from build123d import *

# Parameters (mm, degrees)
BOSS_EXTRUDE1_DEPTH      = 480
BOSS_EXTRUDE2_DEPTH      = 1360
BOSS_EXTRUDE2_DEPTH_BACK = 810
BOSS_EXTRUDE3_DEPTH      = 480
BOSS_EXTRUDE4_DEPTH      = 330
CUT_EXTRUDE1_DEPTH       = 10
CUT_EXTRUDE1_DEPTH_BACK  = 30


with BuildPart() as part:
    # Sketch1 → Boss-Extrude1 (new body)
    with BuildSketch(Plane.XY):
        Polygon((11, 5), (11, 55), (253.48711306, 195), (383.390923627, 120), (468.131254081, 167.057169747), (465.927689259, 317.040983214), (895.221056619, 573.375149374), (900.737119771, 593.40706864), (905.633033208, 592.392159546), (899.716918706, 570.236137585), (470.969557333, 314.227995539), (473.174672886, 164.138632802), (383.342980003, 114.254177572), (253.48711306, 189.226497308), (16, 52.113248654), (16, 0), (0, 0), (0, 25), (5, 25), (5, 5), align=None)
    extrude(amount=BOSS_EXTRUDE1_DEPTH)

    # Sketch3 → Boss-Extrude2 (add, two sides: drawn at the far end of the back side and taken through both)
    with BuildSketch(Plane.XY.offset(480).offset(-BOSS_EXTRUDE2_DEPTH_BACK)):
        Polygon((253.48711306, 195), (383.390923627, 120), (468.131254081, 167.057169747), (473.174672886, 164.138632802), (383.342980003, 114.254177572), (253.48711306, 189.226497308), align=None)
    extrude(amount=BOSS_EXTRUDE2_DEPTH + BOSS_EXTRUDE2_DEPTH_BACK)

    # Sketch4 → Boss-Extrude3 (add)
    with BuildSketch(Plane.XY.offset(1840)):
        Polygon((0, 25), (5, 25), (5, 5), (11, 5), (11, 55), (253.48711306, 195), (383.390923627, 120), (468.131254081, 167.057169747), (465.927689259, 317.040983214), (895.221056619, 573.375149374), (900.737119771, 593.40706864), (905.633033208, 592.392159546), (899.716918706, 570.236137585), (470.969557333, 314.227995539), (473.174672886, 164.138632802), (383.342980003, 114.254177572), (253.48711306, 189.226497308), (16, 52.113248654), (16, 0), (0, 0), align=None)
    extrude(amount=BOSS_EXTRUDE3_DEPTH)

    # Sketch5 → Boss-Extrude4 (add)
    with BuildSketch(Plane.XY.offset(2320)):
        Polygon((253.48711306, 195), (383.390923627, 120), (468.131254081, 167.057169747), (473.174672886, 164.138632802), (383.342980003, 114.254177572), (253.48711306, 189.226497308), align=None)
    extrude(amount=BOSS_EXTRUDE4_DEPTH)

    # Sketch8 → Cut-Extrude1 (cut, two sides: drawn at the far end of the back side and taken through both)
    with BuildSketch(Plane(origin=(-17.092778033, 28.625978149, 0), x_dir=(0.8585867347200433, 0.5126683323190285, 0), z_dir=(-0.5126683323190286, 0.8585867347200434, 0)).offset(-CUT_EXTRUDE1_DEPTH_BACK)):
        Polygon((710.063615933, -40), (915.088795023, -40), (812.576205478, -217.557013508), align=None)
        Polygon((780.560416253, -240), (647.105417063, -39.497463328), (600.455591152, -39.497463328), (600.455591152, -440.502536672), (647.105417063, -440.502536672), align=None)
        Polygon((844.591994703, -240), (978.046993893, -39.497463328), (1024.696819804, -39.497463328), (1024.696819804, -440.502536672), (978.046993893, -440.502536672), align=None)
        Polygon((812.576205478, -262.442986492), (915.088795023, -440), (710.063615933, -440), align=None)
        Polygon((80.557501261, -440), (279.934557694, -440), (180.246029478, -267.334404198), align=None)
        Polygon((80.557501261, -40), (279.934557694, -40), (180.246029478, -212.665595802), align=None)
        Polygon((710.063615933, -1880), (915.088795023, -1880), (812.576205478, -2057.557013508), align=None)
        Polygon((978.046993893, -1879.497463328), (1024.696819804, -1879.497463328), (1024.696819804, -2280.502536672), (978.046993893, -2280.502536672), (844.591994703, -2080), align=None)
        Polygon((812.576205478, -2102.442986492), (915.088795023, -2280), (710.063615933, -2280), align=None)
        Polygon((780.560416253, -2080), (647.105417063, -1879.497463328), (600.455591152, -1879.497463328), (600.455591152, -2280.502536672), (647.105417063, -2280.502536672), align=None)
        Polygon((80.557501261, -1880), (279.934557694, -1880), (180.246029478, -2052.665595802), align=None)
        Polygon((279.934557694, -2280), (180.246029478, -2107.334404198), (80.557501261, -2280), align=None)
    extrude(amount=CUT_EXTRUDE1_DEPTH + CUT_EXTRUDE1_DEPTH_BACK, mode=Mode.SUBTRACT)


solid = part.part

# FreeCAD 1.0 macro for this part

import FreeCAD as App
import Part
import Sketcher

V = App.Vector
Q = App.Units.Quantity


def add_polygon(sketch, points):
    """Adds a closed chain of lines whose ends are joined by coincident constraints."""
    first, n = sketch.GeometryCount, len(points)
    for a, b in zip(points, points[1:] + points[:1]):
        sketch.addGeometry(Part.LineSegment(App.Vector(*a, 0), App.Vector(*b, 0)), False)
    for i in range(n):
        sketch.addConstraint(Sketcher.Constraint("Coincident", first + i, 2, first + (i + 1) % n, 1))

doc = App.newDocument("Part")
body = doc.addObject("PartDesign::Body", "Body")

sketch1 = body.newObject("Sketcher::SketchObject", "Sketch")
sketch1.AttachmentSupport = (doc.getObject("XY_Plane"), [""])
sketch1.MapMode = "FlatFace"
add_polygon(sketch1, [(11, 55), (11, 5), (5, 5), (5, 25), (0, 25), (0, 0), (16, 0), (16, 52), (253, 189), (383, 114), (473, 164), (471, 314), (900, 570), (906, 592), (901, 593), (895, 573), (466, 317), (468, 167), (383, 120), (253, 195)])
sketch1.addConstraint([
    Sketcher.Constraint("Vertical", 0),
    Sketcher.Constraint("Horizontal", 1),
    Sketcher.Constraint("Vertical", 2),
    Sketcher.Constraint("Horizontal", 3),
    Sketcher.Constraint("Vertical", 4),
    Sketcher.Constraint("Horizontal", 5),
    Sketcher.Constraint("Vertical", 6),
    Sketcher.Constraint("Coincident", 4, 2, -1, 1),
    Sketcher.Constraint("Parallel", 11, 15),
    Sketcher.Constraint("Parallel", 10, 16),
    Sketcher.Constraint("Parallel", 9, 17),
    Sketcher.Constraint("Parallel", 8, 18),
    Sketcher.Constraint("Parallel", 7, 19),
    Sketcher.Constraint("Vertical", 7, 2, 18, 2),
    Sketcher.Constraint("Equal", 16, 18),
    Sketcher.Constraint("DistanceX", 1, 2, 1, 1, 6.0),
    Sketcher.Constraint("DistanceX", 3, 2, 3, 1, 5.0),
    Sketcher.Constraint("DistanceX", 5, 1, 5, 2, 16.0),
    Sketcher.Constraint("DistanceY", 0, 2, 0, 1, 50.0),
    Sketcher.Constraint("DistanceY", 2, 1, 2, 2, 20.0),
    Sketcher.Constraint("DistanceY", 4, 2, 4, 1, 25.0),
    Sketcher.Constraint("Angle", 7, Q("30 deg")),
    Sketcher.Constraint("Angle", 8, Q("-30 deg")),
    Sketcher.Constraint("Distance", 13, 5.000001),
    Sketcher.Constraint("Distance", 15, 500.0),
    Sketcher.Constraint("Distance", 16, 150.0),
    Sketcher.Constraint("Distance", 19, 280.0),
    Sketcher.Constraint("DistanceY", 6, 1, 6, 2, 52.113249),
    Sketcher.Constraint("DistanceY", 7, 2, 10, 2, 125.001498),
    Sketcher.Constraint("DistanceX", 11, 2, 13, 2, 1.020201),
    Sketcher.Constraint("DistanceX", 10, 2, 14, 2, 424.251499),
    Sketcher.Constraint("Distance", 8, 149.944639),
    Sketcher.Constraint("Distance", 10, 150.105561),
    Sketcher.Constraint("Distance", 17, 96.92936),
    Sketcher.Constraint("DistanceX", -1, 1, 11, 2, 899.716919),
    Sketcher.Constraint("DistanceY", -1, 1, 12, 2, 592.39216),
    Sketcher.Constraint("DistanceY", -1, 1, 13, 2, 593.407069),
    Sketcher.Constraint("DistanceY", -1, 1, 14, 2, 573.375149),
    Sketcher.Constraint("DistanceX", -1, 1, 15, 2, 465.927689),
])
pad1 = body.newObject("PartDesign::Pad", "Pad")
pad1.Profile = sketch1
pad1.Length = 480

sketch2 = body.newObject("Sketcher::SketchObject", "Sketch001")
sketch2.AttachmentSupport = (doc.getObject("XY_Plane"), [""])
sketch2.MapMode = "FlatFace"
sketch2.AttachmentOffset = App.Placement(V(0, 0, 480), App.Rotation())
add_polygon(sketch2, [(383, 120), (253, 195), (253, 189), (383, 114), (473, 164), (468, 167)])
sketch2.addConstraint([
    Sketcher.Constraint("Vertical", 1),
    Sketcher.Constraint("Parallel", 0, 2),
    Sketcher.Constraint("Parallel", 3, 5),
    Sketcher.Constraint("Angle", 0, Q("150 deg")),
    Sketcher.Constraint("Distance", 0, 150.0),
    Sketcher.Constraint("DistanceY", -1, 1, 0, 2, 195.0),
    Sketcher.Constraint("Distance", 4, 5.827),
    Sketcher.Constraint("Distance", 2, 149.944639),
    Sketcher.Constraint("Distance", 5, 96.92936),
    Sketcher.Constraint("DistanceY", 1, 2, 1, 1, 5.773503),
    Sketcher.Constraint("DistanceX", -1, 1, 2, 2, 383.34298),
    Sketcher.Constraint("DistanceY", -1, 1, 4, 2, 167.05717),
])
pad2 = body.newObject("PartDesign::Pad", "Pad001")
pad2.Profile = sketch2
pad2.Type = "TwoLengths"
pad2.Length = 1360
pad2.Length2 = 810

sketch3 = body.newObject("Sketcher::SketchObject", "Sketch002")
sketch3.AttachmentSupport = (doc.getObject("XY_Plane"), [""])
sketch3.MapMode = "FlatFace"
sketch3.AttachmentOffset = App.Placement(V(0, 0, 1840), App.Rotation())
add_polygon(sketch3, [(5, 25), (0, 25), (0, 0), (16, 0), (16, 52), (253, 189), (383, 114), (473, 164), (471, 314), (900, 570), (906, 592), (901, 593), (895, 573), (466, 317), (468, 167), (383, 120), (253, 195), (11, 55), (11, 5), (5, 5)])
sketch3.addConstraint([
    Sketcher.Constraint("Horizontal", 0),
    Sketcher.Constraint("Vertical", 1),
    Sketcher.Constraint("Horizontal", 2),
    Sketcher.Constraint("Vertical", 3),
    Sketcher.Constraint("Vertical", 17),
    Sketcher.Constraint("Horizontal", 18),
    Sketcher.Constraint("Vertical", 19),
    Sketcher.Constraint("Coincident", 1, 2, -1, 1),
    Sketcher.Constraint("Parallel", 8, 12),
    Sketcher.Constraint("Parallel", 7, 13),
    Sketcher.Constraint("Parallel", 6, 14),
    Sketcher.Constraint("Parallel", 5, 15),
    Sketcher.Constraint("Parallel", 4, 16),
    Sketcher.Constraint("Vertical", 4, 2, 15, 2),
    Sketcher.Constraint("Equal", 13, 15),
    Sketcher.Constraint("DistanceX", 0, 2, 0, 1, 5.0),
    Sketcher.Constraint("DistanceX", 2, 1, 2, 2, 16.0),
    Sketcher.Constraint("DistanceX", 18, 2, 18, 1, 6.0),
    Sketcher.Constraint("DistanceY", 1, 2, 1, 1, 25.0),
    Sketcher.Constraint("DistanceY", 17, 2, 17, 1, 50.0),
    Sketcher.Constraint("DistanceY", 19, 1, 19, 2, 20.0),
    Sketcher.Constraint("Angle", 4, Q("30 deg")),
    Sketcher.Constraint("Angle", 5, Q("-30 deg")),
    Sketcher.Constraint("Distance", 10, 5.000001),
    Sketcher.Constraint("Distance", 12, 500.0),
    Sketcher.Constraint("Distance", 13, 150.0),
    Sketcher.Constraint("Distance", 16, 280.0),
    Sketcher.Constraint("DistanceY", 3, 1, 3, 2, 52.113249),
    Sketcher.Constraint("DistanceY", 4, 2, 7, 2, 125.001498),
    Sketcher.Constraint("DistanceX", 8, 2, 10, 2, 1.020201),
    Sketcher.Constraint("DistanceX", 7, 2, 11, 2, 424.251499),
    Sketcher.Constraint("Distance", 5, 149.944639),
    Sketcher.Constraint("Distance", 7, 150.105561),
    Sketcher.Constraint("Distance", 14, 96.92936),
    Sketcher.Constraint("DistanceX", -1, 1, 8, 2, 899.716919),
    Sketcher.Constraint("DistanceY", -1, 1, 9, 2, 592.39216),
    Sketcher.Constraint("DistanceY", -1, 1, 10, 2, 593.407069),
    Sketcher.Constraint("DistanceY", -1, 1, 11, 2, 573.375149),
    Sketcher.Constraint("DistanceX", -1, 1, 12, 2, 465.927689),
])
pad3 = body.newObject("PartDesign::Pad", "Pad002")
pad3.Profile = sketch3
pad3.Length = 480

sketch4 = body.newObject("Sketcher::SketchObject", "Sketch003")
sketch4.AttachmentSupport = (doc.getObject("XY_Plane"), [""])
sketch4.MapMode = "FlatFace"
sketch4.AttachmentOffset = App.Placement(V(0, 0, 2320), App.Rotation())
add_polygon(sketch4, [(383, 120), (253, 195), (253, 189), (383, 114), (473, 164), (468, 167)])
sketch4.addConstraint([
    Sketcher.Constraint("Vertical", 1),
    Sketcher.Constraint("Parallel", 0, 2),
    Sketcher.Constraint("Parallel", 3, 5),
    Sketcher.Constraint("Angle", 0, Q("150 deg")),
    Sketcher.Constraint("Distance", 0, 150.0),
    Sketcher.Constraint("DistanceY", -1, 1, 0, 2, 195.0),
    Sketcher.Constraint("Distance", 4, 5.827),
    Sketcher.Constraint("Distance", 2, 149.944639),
    Sketcher.Constraint("Distance", 5, 96.92936),
    Sketcher.Constraint("DistanceY", 1, 2, 1, 1, 5.773503),
    Sketcher.Constraint("DistanceX", -1, 1, 2, 2, 383.34298),
    Sketcher.Constraint("DistanceY", -1, 1, 4, 2, 167.05717),
])
pad4 = body.newObject("PartDesign::Pad", "Pad003")
pad4.Profile = sketch4
pad4.Length = 330

sketch5 = body.newObject("Sketcher::SketchObject", "Sketch004")
sketch5.Placement = App.Placement(V(-17.092778, 28.625978, 0), App.Rotation(V(0.858586735, 0.512668332, 0), V(0, 0, -1), V(-0.512668332, 0.858586735, 0), "ZXY"))
add_polygon(sketch5, [(915, -40), (710, -40), (813, -218)])
add_polygon(sketch5, [(781, -240), (647, -39), (600, -39), (600, -441), (647, -441)])
add_polygon(sketch5, [(978, -39), (845, -240), (978, -441), (1025, -441), (1025, -39)])
add_polygon(sketch5, [(915, -440), (813, -262), (710, -440)])
add_polygon(sketch5, [(81, -440), (280, -440), (180, -267)])
add_polygon(sketch5, [(280, -40), (81, -40), (180, -213)])
add_polygon(sketch5, [(915, -1880), (710, -1880), (813, -2058)])
add_polygon(sketch5, [(1025, -1879), (978, -1879), (845, -2080), (978, -2281), (1025, -2281)])
add_polygon(sketch5, [(915, -2280), (813, -2102), (710, -2280)])
add_polygon(sketch5, [(781, -2080), (647, -1879), (600, -1879), (600, -2281), (647, -2281)])
add_polygon(sketch5, [(280, -1880), (81, -1880), (180, -2053)])
add_polygon(sketch5, [(280, -2280), (180, -2107), (81, -2280)])
sketch5.addConstraint([
    Sketcher.Constraint("Horizontal", 0),
    Sketcher.Constraint("Horizontal", 4),
    Sketcher.Constraint("Vertical", 5),
    Sketcher.Constraint("Horizontal", 6),
    Sketcher.Constraint("Horizontal", 10),
    Sketcher.Constraint("Vertical", 11),
    Sketcher.Constraint("Horizontal", 12),
    Sketcher.Constraint("Horizontal", 15),
    Sketcher.Constraint("Horizontal", 16),
    Sketcher.Constraint("Horizontal", 19),
    Sketcher.Constraint("Horizontal", 22),
    Sketcher.Constraint("Horizontal", 25),
    Sketcher.Constraint("Horizontal", 28),
    Sketcher.Constraint("Vertical", 29),
    Sketcher.Constraint("Horizontal", 32),
    Sketcher.Constraint("Horizontal", 34),
    Sketcher.Constraint("Vertical", 35),
    Sketcher.Constraint("Horizontal", 36),
    Sketcher.Constraint("Horizontal", 38),
    Sketcher.Constraint("Horizontal", 43),
    Sketcher.Constraint("Parallel", 7, 8),
    Sketcher.Constraint("Parallel", 3, 9),
    Sketcher.Constraint("Parallel", 1, 13),
    Sketcher.Constraint("Parallel", 2, 14),
    Sketcher.Constraint("Parallel", 13, 17),
    Sketcher.Constraint("Parallel", 14, 18),
    Sketcher.Constraint("Parallel", 17, 20),
    Sketcher.Constraint("Parallel", 18, 21),
    Sketcher.Constraint("Parallel", 20, 23),
    Sketcher.Constraint("Parallel", 21, 24),
    Sketcher.Constraint("Parallel", 8, 26),
    Sketcher.Constraint("Parallel", 9, 27),
    Sketcher.Constraint("Parallel", 23, 30),
    Sketcher.Constraint("Parallel", 24, 31),
    Sketcher.Constraint("Parallel", 27, 33),
    Sketcher.Constraint("Parallel", 26, 37),
    Sketcher.Constraint("Parallel", 30, 39),
    Sketcher.Constraint("Parallel", 31, 40),
    Sketcher.Constraint("Parallel", 39, 41),
    Sketcher.Constraint("Parallel", 40, 42),
    Sketcher.Constraint("Horizontal", 7, 2, 8, 2),
    Sketcher.Constraint("Horizontal", 6, 2, 9, 2),
    Sketcher.Constraint("Horizontal", 4, 2, 11, 2),
    Sketcher.Constraint("Horizontal", 15, 2, 16, 2),
    Sketcher.Constraint("Horizontal", 2, 2, 19, 2),
    Sketcher.Constraint("Horizontal", 29, 2, 33, 2),
    Sketcher.Constraint("Horizontal", 28, 2, 35, 2),
    Sketcher.Constraint("Horizontal", 26, 2, 37, 2),
    Sketcher.Constraint("Horizontal", 24, 2, 38, 2),
    Sketcher.Constraint("Horizontal", 32, 2, 42, 2),
    Sketcher.Constraint("Vertical", 3, 2, 6, 2),
    Sketcher.Constraint("Vertical", 9, 2, 12, 2),
    Sketcher.Constraint("Vertical", 1, 2, 13, 2),
    Sketcher.Constraint("Vertical", 0, 2, 14, 2),
    Sketcher.Constraint("Vertical", 2, 2, 15, 2),
    Sketcher.Constraint("Vertical", 18, 2, 19, 2),
    Sketcher.Constraint("Vertical", 17, 2, 20, 2),
    Sketcher.Constraint("Vertical", 14, 2, 22, 2),
    Sketcher.Constraint("Vertical", 13, 2, 23, 2),
    Sketcher.Constraint("Vertical", 12, 2, 25, 2),
    Sketcher.Constraint("Vertical", 8, 2, 26, 2),
    Sketcher.Constraint("Vertical", 25, 2, 27, 2),
    Sketcher.Constraint("Vertical", 11, 2, 28, 2),
    Sketcher.Constraint("Vertical", 23, 2, 30, 2),
    Sketcher.Constraint("Vertical", 22, 2, 31, 2),
    Sketcher.Constraint("Vertical", 6, 2, 33, 2),
    Sketcher.Constraint("Vertical", 5, 2, 34, 2),
    Sketcher.Constraint("Vertical", 19, 2, 38, 2),
    Sketcher.Constraint("Vertical", 20, 2, 39, 2),
    Sketcher.Constraint("Vertical", 39, 2, 41, 2),
    Sketcher.Constraint("Vertical", 38, 2, 42, 2),
    Sketcher.Constraint("Equal", 6, 10),
    Sketcher.Constraint("Angle", 1, Q("-60 deg")),
    Sketcher.Constraint("DistanceY", 0, 2, -1, 1, 40.0),
    Sketcher.Constraint("DistanceY", 7, 2, -1, 1, 240.0),
    Sketcher.Constraint("DistanceY", 14, 2, -1, 1, 440.0),
    Sketcher.Constraint("DistanceY", 22, 2, -1, 1, 1880.000001),
    Sketcher.Constraint("DistanceY", 26, 2, -1, 1, 2080.000001),
    Sketcher.Constraint("DistanceY", 31, 2, -1, 1, 2280.000001),
    Sketcher.Constraint("DistanceX", 6, 2, 7, 2, 133.454999),
    Sketcher.Constraint("DistanceX", 0, 2, 0, 1, 205.025179),
    Sketcher.Constraint("DistanceX", -1, 1, 18, 2, 80.557501),
    Sketcher.Constraint("DistanceX", 3, 2, 0, 2, 62.958199),
    Sketcher.Constraint("DistanceX", 8, 2, 2, 2, 70.4968),
    Sketcher.Constraint("DistanceX", 4, 2, 4, 1, 46.649826),
    Sketcher.Constraint("DistanceX", 16, 1, 16, 2, 199.377056),
    Sketcher.Constraint("DistanceY", 5, 2, 5, 1, 401.005073),
    Sketcher.Constraint("DistanceX", -1, 1, 4, 2, 600.455591),
])
pocket1 = body.newObject("PartDesign::Pocket", "Pocket")
pocket1.Profile = sketch5
pocket1.Type = "ThroughAll"
pocket1.Midplane = True

doc.recompute()
